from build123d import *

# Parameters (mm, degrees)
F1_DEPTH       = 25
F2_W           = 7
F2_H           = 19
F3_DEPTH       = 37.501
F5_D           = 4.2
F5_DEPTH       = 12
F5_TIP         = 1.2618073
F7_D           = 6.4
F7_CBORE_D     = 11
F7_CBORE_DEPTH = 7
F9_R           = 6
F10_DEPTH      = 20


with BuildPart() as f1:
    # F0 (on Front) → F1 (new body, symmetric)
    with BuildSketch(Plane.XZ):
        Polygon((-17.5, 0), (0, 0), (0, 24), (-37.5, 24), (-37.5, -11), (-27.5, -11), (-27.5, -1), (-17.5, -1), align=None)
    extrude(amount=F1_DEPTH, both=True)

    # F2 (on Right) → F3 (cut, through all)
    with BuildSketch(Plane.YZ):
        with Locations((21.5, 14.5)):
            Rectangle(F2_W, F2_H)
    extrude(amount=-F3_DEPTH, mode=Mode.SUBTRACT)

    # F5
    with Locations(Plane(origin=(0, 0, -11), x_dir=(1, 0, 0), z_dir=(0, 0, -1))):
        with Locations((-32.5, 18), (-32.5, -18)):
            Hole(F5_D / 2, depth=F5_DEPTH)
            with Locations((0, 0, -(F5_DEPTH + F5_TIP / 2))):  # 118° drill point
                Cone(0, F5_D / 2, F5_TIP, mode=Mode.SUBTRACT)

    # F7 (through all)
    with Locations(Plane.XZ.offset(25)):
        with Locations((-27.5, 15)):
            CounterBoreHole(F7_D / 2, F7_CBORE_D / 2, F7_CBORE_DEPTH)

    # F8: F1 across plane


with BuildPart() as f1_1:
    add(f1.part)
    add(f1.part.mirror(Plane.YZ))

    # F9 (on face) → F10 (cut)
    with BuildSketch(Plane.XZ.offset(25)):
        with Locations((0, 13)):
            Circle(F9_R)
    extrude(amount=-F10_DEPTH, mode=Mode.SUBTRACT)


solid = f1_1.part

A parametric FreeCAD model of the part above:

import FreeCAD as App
import Part
import Sketcher

V = App.Vector
Q = App.Units.Quantity


def add_polygon(sketch, points):
    """Adds a closed chain of lines whose ends are joined by coincident constraints."""
    first, n = sketch.GeometryCount, len(points)
    for a, b in zip(points, points[1:] + points[:1]):
        sketch.addGeometry(Part.LineSegment(App.Vector(*a, 0), App.Vector(*b, 0)), False)
    for i in range(n):
        sketch.addConstraint(Sketcher.Constraint("Coincident", first + i, 2, first + (i + 1) % n, 1))

doc = App.newDocument("Part")
body = doc.addObject("PartDesign::Body", "Body")

sketch1 = body.newObject("Sketcher::SketchObject", "Sketch")
sketch1.AttachmentSupport = (doc.getObject("XZ_Plane"), [""])
sketch1.MapMode = "FlatFace"
add_polygon(sketch1, [(-17.5, 0), (0, 0), (0, 24), (-37.5, 24), (-37.5, -11), (-27.5, -11), (-27.5, -1), (-17.5, -1)])
sketch1.addConstraint(Sketcher.Constraint("Horizontal", 0))
sketch1.addConstraint(Sketcher.Constraint("Vertical", 1))
sketch1.addConstraint(Sketcher.Constraint("Horizontal", 2))
sketch1.addConstraint(Sketcher.Constraint("Vertical", 3))
sketch1.addConstraint(Sketcher.Constraint("Horizontal", 4))
sketch1.addConstraint(Sketcher.Constraint("Vertical", 5))
sketch1.addConstraint(Sketcher.Constraint("Horizontal", 6))
sketch1.addConstraint(Sketcher.Constraint("Vertical", 7))
sketch1.addConstraint(Sketcher.Constraint("Coincident", 0, 2, -1, 1))
sketch1.addConstraint(Sketcher.Constraint("Equal", 4, 6))
sketch1.addConstraint(Sketcher.Constraint("Equal", 6, 5))
sketch1.addConstraint(Sketcher.Constraint("DistanceX", 4, 1, 4, 2, Q("10 mm")))
sketch1.addConstraint(Sketcher.Constraint("DistanceY", 1, 1, 1, 2, Q("24 mm")))
sketch1.addConstraint(Sketcher.Constraint("DistanceY", 3, 2, 3, 1, Q("35 mm")))
sketch1.addConstraint(Sketcher.Constraint("DistanceX", 0, 1, 0, 2, Q("17.5 mm")))
pad1 = body.newObject("PartDesign::Pad", "Pad")
pad1.Profile = sketch1
pad1.Length = 50
pad1.Midplane = True

sketch2 = body.newObject("Sketcher::SketchObject", "Sketch001")
sketch2.AttachmentSupport = (doc.getObject("YZ_Plane"), [""])
sketch2.MapMode = "FlatFace"
add_polygon(sketch2, [(18, 24), (18, 5), (25, 5), (25, 24)])
sketch2.addConstraint(Sketcher.Constraint("Vertical", 0))
sketch2.addConstraint(Sketcher.Constraint("Horizontal", 1))
sketch2.addConstraint(Sketcher.Constraint("Vertical", 2))
sketch2.addConstraint(Sketcher.Constraint("Horizontal", 3))
sketch2.addConstraint(Sketcher.Constraint("DistanceX", 1, 1, 1, 2, Q("7 mm")))
sketch2.addConstraint(Sketcher.Constraint("DistanceY", 0, 2, 0, 1, Q("19 mm")))
sketch2.addConstraint(Sketcher.Constraint("DistanceX", -1, 1, 0, 2, Q("18 mm")))
sketch2.addConstraint(Sketcher.Constraint("DistanceY", -1, 1, 0, 2, Q("5 mm")))
pocket1 = body.newObject("PartDesign::Pocket", "Pocket")
pocket1.Profile = sketch2
pocket1.Type = "ThroughAll"

sketch3 = body.newObject("Sketcher::SketchObject", "Sketch002")
sketch3.AttachmentSupport = (doc.getObject("XY_Plane"), [""])
sketch3.MapMode = "FlatFace"
sketch3.AttachmentOffset = App.Placement(V(0, 0, -11), App.Rotation())
sketch3.addGeometry(Part.Circle(V(-32.5, -18, 0), V(0, 0, 1), 2.1), False)
sketch3.addGeometry(Part.Circle(V(-32.5, 18, 0), V(0, 0, 1), 2.1), False)
sketch3.addConstraint(Sketcher.Constraint("Equal", 0, 1))
sketch3.addConstraint(Sketcher.Constraint("Symmetric", 0, 3, 1, 3, -1))
sketch3.addConstraint(Sketcher.Constraint("Diameter", 0, Q("4.2 mm")))
sketch3.addConstraint(Sketcher.Constraint("DistanceY", 0, 3, -1, 1, Q("18 mm")))
sketch3.addConstraint(Sketcher.Constraint("DistanceX", 0, 3, -1, 1, Q("32.5 mm")))
doc.recompute()
hole = body.newObject("PartDesign::Hole", "Hole")
hole.Profile = sketch3
hole.ThreadType = "None"
hole.Diameter = 4.2
hole.DepthType = "Dimension"
hole.Depth = 12
hole.DrillPoint = "Angled"
hole.DrillPointAngle = 118
hole.Reversed = True

sketch4 = body.newObject("Sketcher::SketchObject", "Sketch003")
sketch4.AttachmentSupport = (doc.getObject("XZ_Plane"), [""])
sketch4.MapMode = "FlatFace"
sketch4.AttachmentOffset = App.Placement(V(0, 0, 25), App.Rotation())
sketch4.addGeometry(Part.Circle(V(-27.5, 15, 0), V(0, 0, 1), 3.2), False)
sketch4.addConstraint(Sketcher.Constraint("Diameter", 0, Q("6.4 mm")))
sketch4.addConstraint(Sketcher.Constraint("DistanceY", -1, 1, 0, 3, Q("15 mm")))
sketch4.addConstraint(Sketcher.Constraint("DistanceX", 0, 3, -1, 1, Q("27.5 mm")))
doc.recompute()
hole2 = body.newObject("PartDesign::Hole", "Hole001")
hole2.Profile = sketch4
hole2.ThreadType = "None"
hole2.Diameter = 6.4
hole2.DepthType = "ThroughAll"
hole2.HoleCutType = "Counterbore"
hole2.HoleCutDiameter = 11
hole2.HoleCutDepth = 7
body2 = doc.addObject("PartDesign::Body", "Body001")
doc.recompute()

body2.BaseFeature = body
doc.recompute()

mirroring = doc.addObject("Part::Mirroring", "Mirroring")
mirroring.Source = body
mirroring.Base = V(0, 0, 0)
mirroring.Normal = V(1, 0, 0)
body3 = doc.addObject("PartDesign::Body", "Body002")
body3.BaseFeature = mirroring
boolean = body2.newObject("PartDesign::Boolean", "Boolean")
boolean.Type = "Fuse"
boolean.addObjects([body3])
doc.recompute()

sketch5 = body2.newObject("Sketcher::SketchObject", "Sketch004")
sketch5.AttachmentSupport = (doc.getObject("XZ_Plane001"), [""])
sketch5.MapMode = "FlatFace"
sketch5.AttachmentOffset = App.Placement(V(0, 0, 25), App.Rotation())
sketch5.addGeometry(Part.Circle(V(0, 13, 0), V(0, 0, 1), 6), False)
sketch5.addConstraint(Sketcher.Constraint("PointOnObject", 0, 3, -2))
sketch5.addConstraint(Sketcher.Constraint("Diameter", 0, Q("12 mm")))
sketch5.addConstraint(Sketcher.Constraint("DistanceY", -1, 1, 0, 3, Q("13 mm")))
pocket2 = body2.newObject("PartDesign::Pocket", "Pocket001")
pocket2.Profile = sketch5
pocket2.Length = 20
mirroring.Visibility = False

doc.recompute()
